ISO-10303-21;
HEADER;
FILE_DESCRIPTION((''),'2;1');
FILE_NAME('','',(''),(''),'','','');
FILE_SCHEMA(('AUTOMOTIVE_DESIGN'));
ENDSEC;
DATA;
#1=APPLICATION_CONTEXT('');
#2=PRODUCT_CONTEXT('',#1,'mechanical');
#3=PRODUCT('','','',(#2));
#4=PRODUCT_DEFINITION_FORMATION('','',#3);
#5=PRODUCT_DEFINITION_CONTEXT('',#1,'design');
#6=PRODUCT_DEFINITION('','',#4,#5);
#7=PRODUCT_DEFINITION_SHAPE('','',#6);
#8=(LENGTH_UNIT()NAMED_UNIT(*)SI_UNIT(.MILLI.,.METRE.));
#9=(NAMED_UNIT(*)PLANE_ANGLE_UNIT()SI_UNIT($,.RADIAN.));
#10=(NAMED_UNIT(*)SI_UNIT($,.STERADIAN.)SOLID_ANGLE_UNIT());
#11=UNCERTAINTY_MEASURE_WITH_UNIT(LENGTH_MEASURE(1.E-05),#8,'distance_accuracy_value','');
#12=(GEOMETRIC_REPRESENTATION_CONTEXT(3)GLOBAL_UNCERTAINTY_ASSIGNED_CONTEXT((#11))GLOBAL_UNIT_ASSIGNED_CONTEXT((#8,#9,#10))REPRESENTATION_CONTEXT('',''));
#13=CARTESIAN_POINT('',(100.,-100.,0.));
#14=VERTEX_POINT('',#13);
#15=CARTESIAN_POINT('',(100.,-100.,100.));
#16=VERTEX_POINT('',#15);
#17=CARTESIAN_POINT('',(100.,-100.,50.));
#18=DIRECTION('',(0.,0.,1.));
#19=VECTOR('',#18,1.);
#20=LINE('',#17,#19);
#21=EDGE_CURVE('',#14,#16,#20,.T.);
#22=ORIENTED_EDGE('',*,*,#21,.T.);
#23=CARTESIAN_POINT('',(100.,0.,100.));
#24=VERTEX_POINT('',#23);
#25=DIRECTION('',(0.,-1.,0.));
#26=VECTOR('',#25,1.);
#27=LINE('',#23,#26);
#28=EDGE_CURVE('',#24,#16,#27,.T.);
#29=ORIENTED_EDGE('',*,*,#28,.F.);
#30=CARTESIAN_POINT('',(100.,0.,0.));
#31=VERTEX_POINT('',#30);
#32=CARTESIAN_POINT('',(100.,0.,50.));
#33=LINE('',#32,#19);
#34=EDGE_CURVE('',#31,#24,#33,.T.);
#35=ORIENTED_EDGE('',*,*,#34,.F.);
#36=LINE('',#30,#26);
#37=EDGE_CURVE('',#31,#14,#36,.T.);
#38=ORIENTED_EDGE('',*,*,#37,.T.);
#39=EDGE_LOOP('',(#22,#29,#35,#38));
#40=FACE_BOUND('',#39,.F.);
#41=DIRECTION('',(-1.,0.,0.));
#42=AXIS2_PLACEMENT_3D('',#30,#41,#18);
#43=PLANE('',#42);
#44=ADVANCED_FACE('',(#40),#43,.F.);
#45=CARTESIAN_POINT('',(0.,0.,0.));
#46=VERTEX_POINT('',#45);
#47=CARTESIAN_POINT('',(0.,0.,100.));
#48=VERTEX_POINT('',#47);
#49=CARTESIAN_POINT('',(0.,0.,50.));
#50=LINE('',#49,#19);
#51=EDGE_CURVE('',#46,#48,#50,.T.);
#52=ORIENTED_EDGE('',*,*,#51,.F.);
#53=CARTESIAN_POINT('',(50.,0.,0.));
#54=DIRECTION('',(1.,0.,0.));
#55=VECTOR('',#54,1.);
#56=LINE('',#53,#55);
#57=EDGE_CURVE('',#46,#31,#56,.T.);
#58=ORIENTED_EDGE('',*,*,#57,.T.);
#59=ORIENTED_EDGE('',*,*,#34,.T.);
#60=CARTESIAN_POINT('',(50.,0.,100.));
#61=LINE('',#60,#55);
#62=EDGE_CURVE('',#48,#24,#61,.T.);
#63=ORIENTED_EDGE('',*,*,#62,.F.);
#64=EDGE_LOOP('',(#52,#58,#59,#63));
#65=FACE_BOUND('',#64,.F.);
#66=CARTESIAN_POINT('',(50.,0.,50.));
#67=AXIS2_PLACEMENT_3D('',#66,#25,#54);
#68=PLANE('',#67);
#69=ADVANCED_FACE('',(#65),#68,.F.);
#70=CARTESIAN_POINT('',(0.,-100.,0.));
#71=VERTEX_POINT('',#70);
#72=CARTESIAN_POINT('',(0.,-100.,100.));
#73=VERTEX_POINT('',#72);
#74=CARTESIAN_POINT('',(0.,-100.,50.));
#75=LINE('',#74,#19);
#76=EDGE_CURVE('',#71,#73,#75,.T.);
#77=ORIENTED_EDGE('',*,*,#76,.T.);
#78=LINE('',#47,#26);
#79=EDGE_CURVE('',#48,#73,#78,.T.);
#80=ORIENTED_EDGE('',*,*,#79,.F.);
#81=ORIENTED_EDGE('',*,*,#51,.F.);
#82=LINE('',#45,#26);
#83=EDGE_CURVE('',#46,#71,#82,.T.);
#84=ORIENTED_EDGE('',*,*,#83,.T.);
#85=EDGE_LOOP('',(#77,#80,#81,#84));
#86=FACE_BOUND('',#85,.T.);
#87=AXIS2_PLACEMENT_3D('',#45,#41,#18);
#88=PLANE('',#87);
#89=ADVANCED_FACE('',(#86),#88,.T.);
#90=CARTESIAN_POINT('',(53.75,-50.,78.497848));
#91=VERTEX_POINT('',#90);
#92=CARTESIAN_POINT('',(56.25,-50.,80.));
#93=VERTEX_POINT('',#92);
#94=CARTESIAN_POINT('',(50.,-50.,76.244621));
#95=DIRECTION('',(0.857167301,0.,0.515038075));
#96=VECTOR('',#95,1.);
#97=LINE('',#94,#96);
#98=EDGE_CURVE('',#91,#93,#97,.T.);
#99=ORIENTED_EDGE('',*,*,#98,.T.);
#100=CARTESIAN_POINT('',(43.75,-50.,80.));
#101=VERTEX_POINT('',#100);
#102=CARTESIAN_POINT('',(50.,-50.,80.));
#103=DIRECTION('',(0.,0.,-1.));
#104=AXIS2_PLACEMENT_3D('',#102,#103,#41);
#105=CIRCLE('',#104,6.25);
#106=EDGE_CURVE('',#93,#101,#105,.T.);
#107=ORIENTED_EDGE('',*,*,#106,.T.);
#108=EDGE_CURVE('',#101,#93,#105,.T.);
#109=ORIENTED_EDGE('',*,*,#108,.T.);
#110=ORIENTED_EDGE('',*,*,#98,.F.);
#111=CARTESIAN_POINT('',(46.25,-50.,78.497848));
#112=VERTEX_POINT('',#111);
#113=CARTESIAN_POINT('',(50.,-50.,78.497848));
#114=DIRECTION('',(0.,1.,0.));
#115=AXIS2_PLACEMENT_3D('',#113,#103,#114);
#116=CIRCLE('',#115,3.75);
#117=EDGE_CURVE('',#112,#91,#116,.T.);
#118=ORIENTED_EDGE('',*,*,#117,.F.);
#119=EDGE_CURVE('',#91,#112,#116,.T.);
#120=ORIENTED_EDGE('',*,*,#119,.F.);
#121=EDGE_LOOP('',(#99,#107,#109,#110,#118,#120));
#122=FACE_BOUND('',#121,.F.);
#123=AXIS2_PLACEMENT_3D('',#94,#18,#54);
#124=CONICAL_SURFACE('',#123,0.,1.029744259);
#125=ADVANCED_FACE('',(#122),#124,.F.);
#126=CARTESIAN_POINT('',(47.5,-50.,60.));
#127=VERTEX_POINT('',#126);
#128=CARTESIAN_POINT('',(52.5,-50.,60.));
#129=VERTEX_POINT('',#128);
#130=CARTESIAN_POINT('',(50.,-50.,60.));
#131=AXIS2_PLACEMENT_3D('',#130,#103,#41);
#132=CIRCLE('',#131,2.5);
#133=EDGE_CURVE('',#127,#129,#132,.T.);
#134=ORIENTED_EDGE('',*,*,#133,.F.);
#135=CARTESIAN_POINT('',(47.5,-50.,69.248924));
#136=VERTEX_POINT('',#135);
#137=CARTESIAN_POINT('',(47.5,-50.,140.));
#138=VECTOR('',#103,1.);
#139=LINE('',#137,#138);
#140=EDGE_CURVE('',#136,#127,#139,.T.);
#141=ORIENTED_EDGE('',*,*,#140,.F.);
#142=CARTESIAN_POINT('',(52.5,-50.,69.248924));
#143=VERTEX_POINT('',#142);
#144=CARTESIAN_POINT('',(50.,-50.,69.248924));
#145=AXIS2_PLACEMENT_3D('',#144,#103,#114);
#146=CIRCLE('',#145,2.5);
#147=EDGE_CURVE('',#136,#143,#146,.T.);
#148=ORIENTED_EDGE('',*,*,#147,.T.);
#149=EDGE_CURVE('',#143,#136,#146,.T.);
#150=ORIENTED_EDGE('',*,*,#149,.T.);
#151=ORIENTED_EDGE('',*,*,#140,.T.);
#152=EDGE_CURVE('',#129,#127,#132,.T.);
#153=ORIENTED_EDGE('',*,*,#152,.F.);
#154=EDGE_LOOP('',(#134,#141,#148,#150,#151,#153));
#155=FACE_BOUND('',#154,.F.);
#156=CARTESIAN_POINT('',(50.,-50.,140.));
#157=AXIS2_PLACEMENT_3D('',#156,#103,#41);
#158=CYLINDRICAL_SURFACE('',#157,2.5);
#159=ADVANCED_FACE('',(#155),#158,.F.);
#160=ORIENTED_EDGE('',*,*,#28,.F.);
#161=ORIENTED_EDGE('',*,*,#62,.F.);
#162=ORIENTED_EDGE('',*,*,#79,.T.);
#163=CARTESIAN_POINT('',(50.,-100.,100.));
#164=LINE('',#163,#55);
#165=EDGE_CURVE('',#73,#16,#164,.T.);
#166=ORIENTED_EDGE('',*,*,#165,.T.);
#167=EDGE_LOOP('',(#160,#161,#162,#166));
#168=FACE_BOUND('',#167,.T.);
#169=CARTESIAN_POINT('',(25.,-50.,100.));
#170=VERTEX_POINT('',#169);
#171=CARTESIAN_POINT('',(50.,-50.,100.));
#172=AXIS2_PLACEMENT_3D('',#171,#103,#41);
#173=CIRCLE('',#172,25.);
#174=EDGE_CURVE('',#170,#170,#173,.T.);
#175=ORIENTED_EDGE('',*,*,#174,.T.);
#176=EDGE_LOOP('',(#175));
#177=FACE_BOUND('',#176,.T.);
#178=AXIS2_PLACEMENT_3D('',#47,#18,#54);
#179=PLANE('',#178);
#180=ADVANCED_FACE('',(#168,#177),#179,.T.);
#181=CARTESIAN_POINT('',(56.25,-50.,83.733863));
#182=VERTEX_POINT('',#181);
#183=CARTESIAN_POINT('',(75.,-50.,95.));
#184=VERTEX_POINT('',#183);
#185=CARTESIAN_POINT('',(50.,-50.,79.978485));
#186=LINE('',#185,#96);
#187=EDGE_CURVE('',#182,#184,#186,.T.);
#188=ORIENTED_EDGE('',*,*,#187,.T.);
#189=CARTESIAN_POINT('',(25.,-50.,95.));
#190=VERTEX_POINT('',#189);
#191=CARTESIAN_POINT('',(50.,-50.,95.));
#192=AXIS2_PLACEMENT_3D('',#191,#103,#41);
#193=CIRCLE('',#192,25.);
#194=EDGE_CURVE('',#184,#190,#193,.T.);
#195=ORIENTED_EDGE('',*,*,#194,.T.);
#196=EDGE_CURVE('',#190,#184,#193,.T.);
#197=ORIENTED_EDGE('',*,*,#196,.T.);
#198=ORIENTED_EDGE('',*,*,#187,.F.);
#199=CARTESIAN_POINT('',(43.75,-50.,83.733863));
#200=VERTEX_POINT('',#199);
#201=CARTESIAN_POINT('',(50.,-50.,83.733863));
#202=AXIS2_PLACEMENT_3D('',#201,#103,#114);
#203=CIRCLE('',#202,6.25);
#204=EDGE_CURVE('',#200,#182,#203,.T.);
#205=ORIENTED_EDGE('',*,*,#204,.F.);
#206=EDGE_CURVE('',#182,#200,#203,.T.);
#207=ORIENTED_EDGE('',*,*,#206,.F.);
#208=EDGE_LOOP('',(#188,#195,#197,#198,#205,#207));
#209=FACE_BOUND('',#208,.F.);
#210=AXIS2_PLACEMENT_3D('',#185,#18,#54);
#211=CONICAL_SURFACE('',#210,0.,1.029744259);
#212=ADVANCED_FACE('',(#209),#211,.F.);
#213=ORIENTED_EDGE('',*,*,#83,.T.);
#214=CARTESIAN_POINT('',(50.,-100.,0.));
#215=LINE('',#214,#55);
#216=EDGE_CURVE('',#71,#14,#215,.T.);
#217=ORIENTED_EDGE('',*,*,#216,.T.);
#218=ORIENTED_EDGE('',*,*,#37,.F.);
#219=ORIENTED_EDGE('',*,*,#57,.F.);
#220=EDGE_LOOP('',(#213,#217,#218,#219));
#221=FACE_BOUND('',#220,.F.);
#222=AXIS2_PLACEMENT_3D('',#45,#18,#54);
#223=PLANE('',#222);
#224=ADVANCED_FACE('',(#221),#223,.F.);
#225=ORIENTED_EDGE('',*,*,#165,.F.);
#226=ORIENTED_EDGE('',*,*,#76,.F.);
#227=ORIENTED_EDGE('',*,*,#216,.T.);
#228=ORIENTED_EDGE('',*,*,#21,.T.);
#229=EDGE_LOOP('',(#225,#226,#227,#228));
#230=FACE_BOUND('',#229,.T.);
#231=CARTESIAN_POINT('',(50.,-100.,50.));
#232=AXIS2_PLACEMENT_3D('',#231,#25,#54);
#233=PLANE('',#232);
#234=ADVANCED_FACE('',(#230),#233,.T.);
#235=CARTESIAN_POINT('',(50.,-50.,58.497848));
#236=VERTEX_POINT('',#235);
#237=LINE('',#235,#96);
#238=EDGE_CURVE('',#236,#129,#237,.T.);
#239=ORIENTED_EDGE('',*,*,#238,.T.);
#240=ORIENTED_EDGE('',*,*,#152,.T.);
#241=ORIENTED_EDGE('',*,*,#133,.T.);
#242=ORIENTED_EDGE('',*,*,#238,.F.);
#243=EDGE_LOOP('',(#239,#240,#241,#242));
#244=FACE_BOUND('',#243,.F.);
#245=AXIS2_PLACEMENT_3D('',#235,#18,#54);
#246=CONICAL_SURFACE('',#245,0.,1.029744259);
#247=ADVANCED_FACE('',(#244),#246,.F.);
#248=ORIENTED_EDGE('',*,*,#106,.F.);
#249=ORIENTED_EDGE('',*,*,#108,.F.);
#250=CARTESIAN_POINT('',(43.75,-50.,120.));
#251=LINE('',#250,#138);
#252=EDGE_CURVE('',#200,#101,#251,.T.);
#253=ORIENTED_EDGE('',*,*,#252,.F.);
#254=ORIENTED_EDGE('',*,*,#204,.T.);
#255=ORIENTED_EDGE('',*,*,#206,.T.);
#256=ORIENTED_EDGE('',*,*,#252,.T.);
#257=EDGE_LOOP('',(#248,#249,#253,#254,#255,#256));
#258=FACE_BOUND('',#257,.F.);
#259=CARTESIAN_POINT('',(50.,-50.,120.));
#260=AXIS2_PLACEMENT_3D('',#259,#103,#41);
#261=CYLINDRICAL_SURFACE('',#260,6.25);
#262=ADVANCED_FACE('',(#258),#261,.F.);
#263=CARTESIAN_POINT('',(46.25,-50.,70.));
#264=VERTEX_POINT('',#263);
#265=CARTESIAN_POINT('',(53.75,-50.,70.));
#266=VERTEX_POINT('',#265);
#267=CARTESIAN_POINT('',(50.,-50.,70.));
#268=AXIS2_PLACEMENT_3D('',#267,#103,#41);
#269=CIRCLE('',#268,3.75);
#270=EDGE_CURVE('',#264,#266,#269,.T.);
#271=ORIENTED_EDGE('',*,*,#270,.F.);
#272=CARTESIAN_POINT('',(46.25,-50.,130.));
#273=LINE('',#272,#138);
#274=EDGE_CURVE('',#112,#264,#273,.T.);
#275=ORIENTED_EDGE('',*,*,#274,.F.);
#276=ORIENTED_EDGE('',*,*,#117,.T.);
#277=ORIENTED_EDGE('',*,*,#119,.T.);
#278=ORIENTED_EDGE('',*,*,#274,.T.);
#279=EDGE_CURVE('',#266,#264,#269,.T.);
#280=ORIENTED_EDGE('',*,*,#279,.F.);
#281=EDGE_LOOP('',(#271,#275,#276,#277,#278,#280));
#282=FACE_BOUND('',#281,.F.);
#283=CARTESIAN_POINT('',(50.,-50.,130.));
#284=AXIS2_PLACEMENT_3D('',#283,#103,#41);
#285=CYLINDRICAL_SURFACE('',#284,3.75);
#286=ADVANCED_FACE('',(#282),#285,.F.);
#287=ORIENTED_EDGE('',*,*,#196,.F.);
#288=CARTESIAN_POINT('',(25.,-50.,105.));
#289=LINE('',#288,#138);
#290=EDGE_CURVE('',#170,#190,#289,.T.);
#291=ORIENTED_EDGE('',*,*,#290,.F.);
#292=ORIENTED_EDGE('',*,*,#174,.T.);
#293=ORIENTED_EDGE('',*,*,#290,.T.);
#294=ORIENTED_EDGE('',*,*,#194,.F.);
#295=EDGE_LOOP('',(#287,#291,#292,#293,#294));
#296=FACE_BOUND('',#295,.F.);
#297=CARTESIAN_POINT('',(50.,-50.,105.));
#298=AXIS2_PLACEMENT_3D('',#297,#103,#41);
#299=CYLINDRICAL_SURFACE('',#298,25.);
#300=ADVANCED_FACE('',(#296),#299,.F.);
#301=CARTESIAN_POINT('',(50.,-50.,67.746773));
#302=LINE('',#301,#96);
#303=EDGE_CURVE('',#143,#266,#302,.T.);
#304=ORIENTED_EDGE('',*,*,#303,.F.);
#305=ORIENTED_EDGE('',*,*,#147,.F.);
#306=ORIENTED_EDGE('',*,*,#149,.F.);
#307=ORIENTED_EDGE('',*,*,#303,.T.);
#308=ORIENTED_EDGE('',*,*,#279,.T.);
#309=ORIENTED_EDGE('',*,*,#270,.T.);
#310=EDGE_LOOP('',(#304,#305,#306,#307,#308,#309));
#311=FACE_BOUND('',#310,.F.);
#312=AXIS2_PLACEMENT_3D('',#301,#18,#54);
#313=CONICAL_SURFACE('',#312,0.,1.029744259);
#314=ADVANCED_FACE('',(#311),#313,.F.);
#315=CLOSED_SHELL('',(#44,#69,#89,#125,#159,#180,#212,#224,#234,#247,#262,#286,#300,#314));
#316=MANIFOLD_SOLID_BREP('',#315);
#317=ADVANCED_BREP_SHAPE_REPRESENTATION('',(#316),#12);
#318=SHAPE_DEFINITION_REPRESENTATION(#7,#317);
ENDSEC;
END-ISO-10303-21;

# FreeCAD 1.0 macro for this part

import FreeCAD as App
import Part
import Sketcher

V = App.Vector

doc = App.newDocument("Part")
body = doc.addObject("PartDesign::Body", "Body")

# Sketch on XZ plane
sketch1 = doc.addObject("Sketcher::SketchObject", "Sketch")
body.addObject(sketch1)
sketch1.AttachmentSupport = (doc.XZ_Plane, [""])
sketch1.MapMode = "FlatFace"
sketch1.addGeometry([
    Part.LineSegment(V(0, 100, 0), V(0, 0, 0)),
    Part.LineSegment(V(0, 0, 0), V(100, 0, 0)),
    Part.LineSegment(V(100, 0, 0), V(100, 100, 0)),
    Part.LineSegment(V(100, 100, 0), V(0, 100, 0)),
], False)
sketch1.addConstraint([
    Sketcher.Constraint("Coincident", 0, 2, 1, 1),
    Sketcher.Constraint("Coincident", 1, 2, 2, 1),
    Sketcher.Constraint("Coincident", 2, 2, 3, 1),
    Sketcher.Constraint("Coincident", 3, 2, 0, 1),
    Sketcher.Constraint("Vertical", 0),
    Sketcher.Constraint("Horizontal", 1),
    Sketcher.Constraint("Vertical", 2),
    Sketcher.Constraint("Horizontal", 3),
    Sketcher.Constraint("Coincident", 0, 2, -1, 1),
    Sketcher.Constraint("Equal", 3, 0),
    Sketcher.Constraint("DistanceX", 1, 1, 1, 2, 100.0),
])
pad1 = doc.addObject("PartDesign::Pad", "Pad")
body.addObject(pad1)
pad1.Profile = sketch1
pad1.Length = 100

# Sketch on XY plane
sketch2 = doc.addObject("Sketcher::SketchObject", "Sketch001")
body.addObject(sketch2)
sketch2.AttachmentSupport = (doc.XY_Plane, [""])
sketch2.MapMode = "FlatFace"
sketch2.AttachmentOffset = App.Placement(V(0, 0, 100), App.Rotation())
sketch2.addGeometry(Part.Circle(V(50, -50, 0), V(0, 0, 1), 2.5), False)
sketch2.addConstraint([
    Sketcher.Constraint("Diameter", 0, 5.0),
    Sketcher.Constraint("DistanceX", -1, 1, 0, 3, 50.0),
    Sketcher.Constraint("DistanceY", 0, 3, -1, 1, 50.0),
])
doc.recompute()
hole = doc.addObject("PartDesign::Hole", "Hole")
body.addObject(hole)
hole.Profile = sketch2
hole.ThreadType = "None"
hole.Diameter = 5
hole.DepthType = "Dimension"
hole.Depth = 40
hole.DrillPoint = "Angled"
hole.DrillPointAngle = 118

# Sketch on XY plane
sketch3 = doc.addObject("Sketcher::SketchObject", "Sketch002")
body.addObject(sketch3)
sketch3.AttachmentSupport = (doc.XY_Plane, [""])
sketch3.MapMode = "FlatFace"
sketch3.AttachmentOffset = App.Placement(V(0, 0, 100), App.Rotation())
sketch3.addGeometry(Part.Circle(V(50, -50, 0), V(0, 0, 1), 3.8), False)
sketch3.addConstraint([
    Sketcher.Constraint("Diameter", 0, 7.5),
    Sketcher.Constraint("DistanceX", -1, 1, 0, 3, 50.0),
    Sketcher.Constraint("DistanceY", 0, 3, -1, 1, 50.0),
])
doc.recompute()
hole2 = doc.addObject("PartDesign::Hole", "Hole001")
body.addObject(hole2)
hole2.Profile = sketch3
hole2.ThreadType = "None"
hole2.Diameter = 7.5
hole2.DepthType = "Dimension"
hole2.Depth = 30
hole2.DrillPoint = "Angled"
hole2.DrillPointAngle = 118

# Sketch on XY plane
sketch4 = doc.addObject("Sketcher::SketchObject", "Sketch003")
body.addObject(sketch4)
sketch4.AttachmentSupport = (doc.XY_Plane, [""])
sketch4.MapMode = "FlatFace"
sketch4.AttachmentOffset = App.Placement(V(0, 0, 100), App.Rotation())
sketch4.addGeometry(Part.Circle(V(50, -50, 0), V(0, 0, 1), 6), False)
sketch4.addConstraint([
    Sketcher.Constraint("Diameter", 0, 12.5),
    Sketcher.Constraint("DistanceX", -1, 1, 0, 3, 50.0),
    Sketcher.Constraint("DistanceY", 0, 3, -1, 1, 50.0),
])
doc.recompute()
hole3 = doc.addObject("PartDesign::Hole", "Hole002")
body.addObject(hole3)
hole3.Profile = sketch4
hole3.ThreadType = "None"
hole3.Diameter = 12.5
hole3.DepthType = "Dimension"
hole3.Depth = 20
hole3.DrillPoint = "Angled"
hole3.DrillPointAngle = 118

# Sketch on XY plane
sketch5 = doc.addObject("Sketcher::SketchObject", "Sketch004")
body.addObject(sketch5)
sketch5.AttachmentSupport = (doc.XY_Plane, [""])
sketch5.MapMode = "FlatFace"
sketch5.AttachmentOffset = App.Placement(V(0, 0, 100), App.Rotation())
sketch5.addGeometry(Part.Circle(V(50, -50, 0), V(0, 0, 1), 8), False)
sketch5.addConstraint([
    Sketcher.Constraint("Diameter", 0, 15.0),
    Sketcher.Constraint("DistanceX", -1, 1, 0, 3, 50.0),
    Sketcher.Constraint("DistanceY", 0, 3, -1, 1, 50.0),
])
doc.recompute()
hole4 = doc.addObject("PartDesign::Hole", "Hole003")
body.addObject(hole4)
hole4.Profile = sketch5
hole4.ThreadType = "None"
hole4.Diameter = 15
hole4.DepthType = "Dimension"
hole4.Depth = 10
hole4.DrillPoint = "Angled"
hole4.DrillPointAngle = 118

# Sketch on XY plane
sketch6 = doc.addObject("Sketcher::SketchObject", "Sketch005")
body.addObject(sketch6)
sketch6.AttachmentSupport = (doc.XY_Plane, [""])
sketch6.MapMode = "FlatFace"
sketch6.AttachmentOffset = App.Placement(V(0, 0, 100), App.Rotation())
sketch6.addGeometry(Part.Circle(V(50, -50, 0), V(0, 0, 1), 15), False)
sketch6.addConstraint([
    Sketcher.Constraint("Diameter", 0, 30.0),
    Sketcher.Constraint("DistanceX", -1, 1, 0, 3, 50.0),
    Sketcher.Constraint("DistanceY", 0, 3, -1, 1, 50.0),
])
doc.recompute()
hole5 = doc.addObject("PartDesign::Hole", "Hole004")
body.addObject(hole5)
hole5.Profile = sketch6
hole5.ThreadType = "None"
hole5.Diameter = 30
hole5.DepthType = "Dimension"
hole5.Depth = 5
hole5.DrillPoint = "Angled"
hole5.DrillPointAngle = 118

# Sketch on XY plane
sketch7 = doc.addObject("Sketcher::SketchObject", "Sketch006")
body.addObject(sketch7)
sketch7.AttachmentSupport = (doc.XY_Plane, [""])
sketch7.MapMode = "FlatFace"
sketch7.AttachmentOffset = App.Placement(V(0, 0, 100), App.Rotation())
sketch7.addGeometry(Part.Circle(V(50, -50, 0), V(0, 0, 1), 25), False)
sketch7.addConstraint([
    Sketcher.Constraint("Diameter", 0, 50.0),
    Sketcher.Constraint("DistanceX", -1, 1, 0, 3, 50.0),
    Sketcher.Constraint("DistanceY", 0, 3, -1, 1, 50.0),
])
doc.recompute()
hole6 = doc.addObject("PartDesign::Hole", "Hole005")
body.addObject(hole6)
hole6.Profile = sketch7
hole6.ThreadType = "None"
hole6.Diameter = 50
hole6.DepthType = "Dimension"
hole6.Depth = 5
hole6.DrillPoint = "Angled"
hole6.DrillPointAngle = 118

doc.recompute()
